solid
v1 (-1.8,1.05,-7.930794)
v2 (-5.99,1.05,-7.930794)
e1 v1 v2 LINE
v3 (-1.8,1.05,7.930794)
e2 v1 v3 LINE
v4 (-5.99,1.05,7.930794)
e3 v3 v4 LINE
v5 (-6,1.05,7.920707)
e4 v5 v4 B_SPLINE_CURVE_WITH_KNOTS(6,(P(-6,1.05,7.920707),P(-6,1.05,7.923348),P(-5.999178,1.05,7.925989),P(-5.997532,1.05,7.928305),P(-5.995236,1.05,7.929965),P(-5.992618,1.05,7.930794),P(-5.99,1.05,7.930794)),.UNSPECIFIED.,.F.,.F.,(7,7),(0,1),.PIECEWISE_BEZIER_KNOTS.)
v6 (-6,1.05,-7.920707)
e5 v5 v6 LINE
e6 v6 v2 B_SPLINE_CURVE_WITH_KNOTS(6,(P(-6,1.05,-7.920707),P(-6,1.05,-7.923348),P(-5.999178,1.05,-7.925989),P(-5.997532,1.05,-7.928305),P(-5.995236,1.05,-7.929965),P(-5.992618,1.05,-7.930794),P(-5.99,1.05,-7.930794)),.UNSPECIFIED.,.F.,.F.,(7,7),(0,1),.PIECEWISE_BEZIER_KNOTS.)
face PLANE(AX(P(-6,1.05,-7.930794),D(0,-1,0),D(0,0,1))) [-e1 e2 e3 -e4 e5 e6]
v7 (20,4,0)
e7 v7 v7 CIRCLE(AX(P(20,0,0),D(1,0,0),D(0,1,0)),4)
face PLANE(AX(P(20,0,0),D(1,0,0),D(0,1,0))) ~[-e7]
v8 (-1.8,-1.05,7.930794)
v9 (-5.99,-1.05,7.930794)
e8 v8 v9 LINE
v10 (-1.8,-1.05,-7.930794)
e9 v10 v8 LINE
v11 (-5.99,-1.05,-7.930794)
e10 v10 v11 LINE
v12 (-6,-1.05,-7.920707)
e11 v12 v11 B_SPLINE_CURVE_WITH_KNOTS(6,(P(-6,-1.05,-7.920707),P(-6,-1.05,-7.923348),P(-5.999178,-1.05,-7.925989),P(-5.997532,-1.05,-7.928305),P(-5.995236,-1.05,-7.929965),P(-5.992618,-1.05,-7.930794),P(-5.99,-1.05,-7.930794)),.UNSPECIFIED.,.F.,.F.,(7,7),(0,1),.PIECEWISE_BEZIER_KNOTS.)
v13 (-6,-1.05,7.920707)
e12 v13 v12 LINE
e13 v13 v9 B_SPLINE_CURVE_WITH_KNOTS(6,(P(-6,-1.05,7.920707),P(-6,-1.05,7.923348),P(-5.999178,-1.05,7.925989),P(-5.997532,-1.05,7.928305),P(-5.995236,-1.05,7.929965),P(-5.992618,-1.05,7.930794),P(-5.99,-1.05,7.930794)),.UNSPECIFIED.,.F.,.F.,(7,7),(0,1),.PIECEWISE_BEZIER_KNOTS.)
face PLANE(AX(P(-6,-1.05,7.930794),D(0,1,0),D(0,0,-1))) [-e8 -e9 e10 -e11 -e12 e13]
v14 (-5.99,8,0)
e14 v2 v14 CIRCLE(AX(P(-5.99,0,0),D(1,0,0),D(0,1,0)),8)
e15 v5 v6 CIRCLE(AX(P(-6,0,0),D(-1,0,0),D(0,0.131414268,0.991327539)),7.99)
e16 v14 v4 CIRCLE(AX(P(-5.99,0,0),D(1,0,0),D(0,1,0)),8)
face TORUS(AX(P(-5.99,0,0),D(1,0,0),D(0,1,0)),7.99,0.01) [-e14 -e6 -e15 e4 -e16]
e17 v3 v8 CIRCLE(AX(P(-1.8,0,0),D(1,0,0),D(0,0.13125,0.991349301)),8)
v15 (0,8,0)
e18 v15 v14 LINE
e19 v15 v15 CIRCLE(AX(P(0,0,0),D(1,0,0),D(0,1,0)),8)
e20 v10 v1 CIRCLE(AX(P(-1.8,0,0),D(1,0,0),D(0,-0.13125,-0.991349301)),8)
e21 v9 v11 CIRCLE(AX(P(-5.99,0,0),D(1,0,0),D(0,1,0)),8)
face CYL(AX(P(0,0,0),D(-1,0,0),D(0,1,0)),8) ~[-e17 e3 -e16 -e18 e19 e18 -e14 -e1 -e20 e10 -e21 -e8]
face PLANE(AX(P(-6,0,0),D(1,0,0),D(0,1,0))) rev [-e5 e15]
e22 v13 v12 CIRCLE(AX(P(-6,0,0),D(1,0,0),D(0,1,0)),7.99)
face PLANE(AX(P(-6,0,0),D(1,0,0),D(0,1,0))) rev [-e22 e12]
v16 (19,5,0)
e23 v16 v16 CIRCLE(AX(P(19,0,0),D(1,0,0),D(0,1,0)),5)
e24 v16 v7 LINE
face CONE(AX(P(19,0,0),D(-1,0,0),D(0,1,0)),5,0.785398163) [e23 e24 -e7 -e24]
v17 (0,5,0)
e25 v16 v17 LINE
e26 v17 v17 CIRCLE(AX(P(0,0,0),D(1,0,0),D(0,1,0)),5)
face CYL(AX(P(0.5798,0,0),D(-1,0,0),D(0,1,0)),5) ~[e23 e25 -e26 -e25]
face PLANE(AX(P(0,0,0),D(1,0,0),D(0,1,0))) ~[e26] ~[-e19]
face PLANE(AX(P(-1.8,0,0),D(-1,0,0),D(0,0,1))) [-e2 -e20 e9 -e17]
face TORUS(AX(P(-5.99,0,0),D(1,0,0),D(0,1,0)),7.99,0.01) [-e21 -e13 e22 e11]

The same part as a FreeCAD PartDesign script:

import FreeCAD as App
import Part
import Sketcher
Q = App.Units.Quantity


def edges_at(feature, points):
    """Names of the edges that pass closest to the given points."""
    edges = feature.Shape.Edges
    near = lambda p: min(range(len(edges)), key=lambda i: edges[i].distToShape(Part.Vertex(*p))[0])
    return sorted({f"Edge{near(p) + 1}" for p in points})


def add_polygon(sketch, points):
    """Adds a closed chain of lines whose ends are joined by coincident constraints."""
    first, n = sketch.GeometryCount, len(points)
    for a, b in zip(points, points[1:] + points[:1]):
        sketch.addGeometry(Part.LineSegment(App.Vector(*a, 0), App.Vector(*b, 0)), False)
    for i in range(n):
        sketch.addConstraint(Sketcher.Constraint("Coincident", first + i, 2, first + (i + 1) % n, 1))

doc = App.newDocument("Part")
params = doc.addObject("Spreadsheet::Sheet", "Params")
for row, (alias, value) in enumerate([
    ("sketch1_width", "20 mm"),
    ("sketch1_width2", "6 mm"),
    ("sketch1_height", "8 mm"),
    ("sketch1_height2", "5 mm"),
    ("revolution_angle", "360 deg"),
    ("fillet_radius", "0.01 mm"),
    ("sketch2_height", "16 mm"),
    ("sketch2_width", "2.1 mm"),
    ("pocket1_length", "4.2 mm"),
    ("chamfer_size", "1 mm"),
], start=1):
    params.set(f"A{row}", alias)
    params.set(f"B{row}", "=" + value)
    params.setAlias(f"B{row}", alias)

body = doc.addObject("PartDesign::Body", "Body")

# Sketch on XY plane
sketch1 = body.newObject("Sketcher::SketchObject", "Sketch")
sketch1.AttachmentSupport = (doc.getObject("XY_Plane"), [""])
sketch1.MapMode = "FlatFace"
add_polygon(sketch1, [(-6, 8), (-6, 0), (20, 0), (20, 5), (0, 5), (0, 8)])  # lines 0-5
sketch1.addConstraint(Sketcher.Constraint("Vertical", 0))
sketch1.addConstraint(Sketcher.Constraint("Horizontal", 1))
sketch1.addConstraint(Sketcher.Constraint("Vertical", 2))
sketch1.addConstraint(Sketcher.Constraint("Horizontal", 3))
sketch1.addConstraint(Sketcher.Constraint("Vertical", 4))
sketch1.addConstraint(Sketcher.Constraint("Horizontal", 5))
sketch1.addConstraint(Sketcher.Constraint("PointOnObject", 0, 2, -1))
sketch1.addConstraint(Sketcher.Constraint("PointOnObject", 3, 2, -2))
sketch1.addConstraint(Sketcher.Constraint("DistanceX", 3, 2, 3, 1, Q("20 mm")))
sketch1.addConstraint(Sketcher.Constraint("DistanceX", 5, 2, 5, 1, Q("6 mm")))
sketch1.addConstraint(Sketcher.Constraint("DistanceY", 0, 2, 0, 1, Q("8 mm")))
sketch1.addConstraint(Sketcher.Constraint("DistanceY", 2, 1, 2, 2, Q("5 mm")))
sketch1.setExpression("Constraints[14]", "Params.sketch1_width")
sketch1.setExpression("Constraints[15]", "Params.sketch1_width2")
sketch1.setExpression("Constraints[16]", "Params.sketch1_height")
sketch1.setExpression("Constraints[17]", "Params.sketch1_height2")
revolution = body.newObject("PartDesign::Revolution", "Revolution")
revolution.Profile = sketch1
revolution.ReferenceAxis = (sketch1, ["H_Axis"])
revolution.setExpression("Angle", "Params.revolution_angle")
doc.recompute()

fillet = body.newObject("PartDesign::Fillet", "Fillet")
fillet.Base = (revolution, edges_at(revolution, [(-6, -8, 0)]))
fillet.setExpression("Radius", "Params.fillet_radius")

# Sketch on YZ plane
sketch2 = body.newObject("Sketcher::SketchObject", "Sketch001")
sketch2.AttachmentSupport = (doc.getObject("YZ_Plane"), [""])
sketch2.MapMode = "FlatFace"
sketch2.AttachmentOffset = App.Placement(App.Vector(0, 0, -6), App.Rotation())
add_polygon(sketch2, [(-1.1, 8), (1.1, 8), (1.1, -8), (-1.1, -8)])  # lines 0-3
sketch2.addConstraint(Sketcher.Constraint("Horizontal", 0))
sketch2.addConstraint(Sketcher.Constraint("Vertical", 1))
sketch2.addConstraint(Sketcher.Constraint("Horizontal", 2))
sketch2.addConstraint(Sketcher.Constraint("Vertical", 3))
sketch2.addConstraint(Sketcher.Constraint("Symmetric", 0, 2, 2, 2, -1, 1))
sketch2.addConstraint(Sketcher.Constraint("DistanceY", 1, 2, 1, 1, Q("16 mm")))
sketch2.addConstraint(Sketcher.Constraint("DistanceX", 0, 1, 0, 2, Q("2.1 mm")))
sketch2.setExpression("Constraints[9]", "Params.sketch2_height")
sketch2.setExpression("Constraints[10]", "Params.sketch2_width")
pocket1 = body.newObject("PartDesign::Pocket", "Pocket")
pocket1.Profile = sketch2
pocket1.setExpression("Length", "Params.pocket1_length")
pocket1.Reversed = True
doc.recompute()

chamfer = body.newObject("PartDesign::Chamfer", "Chamfer")
chamfer.Base = (pocket1, edges_at(pocket1, [(20, -5, 0)]))
chamfer.setExpression("Size", "Params.chamfer_size")

doc.recompute()
